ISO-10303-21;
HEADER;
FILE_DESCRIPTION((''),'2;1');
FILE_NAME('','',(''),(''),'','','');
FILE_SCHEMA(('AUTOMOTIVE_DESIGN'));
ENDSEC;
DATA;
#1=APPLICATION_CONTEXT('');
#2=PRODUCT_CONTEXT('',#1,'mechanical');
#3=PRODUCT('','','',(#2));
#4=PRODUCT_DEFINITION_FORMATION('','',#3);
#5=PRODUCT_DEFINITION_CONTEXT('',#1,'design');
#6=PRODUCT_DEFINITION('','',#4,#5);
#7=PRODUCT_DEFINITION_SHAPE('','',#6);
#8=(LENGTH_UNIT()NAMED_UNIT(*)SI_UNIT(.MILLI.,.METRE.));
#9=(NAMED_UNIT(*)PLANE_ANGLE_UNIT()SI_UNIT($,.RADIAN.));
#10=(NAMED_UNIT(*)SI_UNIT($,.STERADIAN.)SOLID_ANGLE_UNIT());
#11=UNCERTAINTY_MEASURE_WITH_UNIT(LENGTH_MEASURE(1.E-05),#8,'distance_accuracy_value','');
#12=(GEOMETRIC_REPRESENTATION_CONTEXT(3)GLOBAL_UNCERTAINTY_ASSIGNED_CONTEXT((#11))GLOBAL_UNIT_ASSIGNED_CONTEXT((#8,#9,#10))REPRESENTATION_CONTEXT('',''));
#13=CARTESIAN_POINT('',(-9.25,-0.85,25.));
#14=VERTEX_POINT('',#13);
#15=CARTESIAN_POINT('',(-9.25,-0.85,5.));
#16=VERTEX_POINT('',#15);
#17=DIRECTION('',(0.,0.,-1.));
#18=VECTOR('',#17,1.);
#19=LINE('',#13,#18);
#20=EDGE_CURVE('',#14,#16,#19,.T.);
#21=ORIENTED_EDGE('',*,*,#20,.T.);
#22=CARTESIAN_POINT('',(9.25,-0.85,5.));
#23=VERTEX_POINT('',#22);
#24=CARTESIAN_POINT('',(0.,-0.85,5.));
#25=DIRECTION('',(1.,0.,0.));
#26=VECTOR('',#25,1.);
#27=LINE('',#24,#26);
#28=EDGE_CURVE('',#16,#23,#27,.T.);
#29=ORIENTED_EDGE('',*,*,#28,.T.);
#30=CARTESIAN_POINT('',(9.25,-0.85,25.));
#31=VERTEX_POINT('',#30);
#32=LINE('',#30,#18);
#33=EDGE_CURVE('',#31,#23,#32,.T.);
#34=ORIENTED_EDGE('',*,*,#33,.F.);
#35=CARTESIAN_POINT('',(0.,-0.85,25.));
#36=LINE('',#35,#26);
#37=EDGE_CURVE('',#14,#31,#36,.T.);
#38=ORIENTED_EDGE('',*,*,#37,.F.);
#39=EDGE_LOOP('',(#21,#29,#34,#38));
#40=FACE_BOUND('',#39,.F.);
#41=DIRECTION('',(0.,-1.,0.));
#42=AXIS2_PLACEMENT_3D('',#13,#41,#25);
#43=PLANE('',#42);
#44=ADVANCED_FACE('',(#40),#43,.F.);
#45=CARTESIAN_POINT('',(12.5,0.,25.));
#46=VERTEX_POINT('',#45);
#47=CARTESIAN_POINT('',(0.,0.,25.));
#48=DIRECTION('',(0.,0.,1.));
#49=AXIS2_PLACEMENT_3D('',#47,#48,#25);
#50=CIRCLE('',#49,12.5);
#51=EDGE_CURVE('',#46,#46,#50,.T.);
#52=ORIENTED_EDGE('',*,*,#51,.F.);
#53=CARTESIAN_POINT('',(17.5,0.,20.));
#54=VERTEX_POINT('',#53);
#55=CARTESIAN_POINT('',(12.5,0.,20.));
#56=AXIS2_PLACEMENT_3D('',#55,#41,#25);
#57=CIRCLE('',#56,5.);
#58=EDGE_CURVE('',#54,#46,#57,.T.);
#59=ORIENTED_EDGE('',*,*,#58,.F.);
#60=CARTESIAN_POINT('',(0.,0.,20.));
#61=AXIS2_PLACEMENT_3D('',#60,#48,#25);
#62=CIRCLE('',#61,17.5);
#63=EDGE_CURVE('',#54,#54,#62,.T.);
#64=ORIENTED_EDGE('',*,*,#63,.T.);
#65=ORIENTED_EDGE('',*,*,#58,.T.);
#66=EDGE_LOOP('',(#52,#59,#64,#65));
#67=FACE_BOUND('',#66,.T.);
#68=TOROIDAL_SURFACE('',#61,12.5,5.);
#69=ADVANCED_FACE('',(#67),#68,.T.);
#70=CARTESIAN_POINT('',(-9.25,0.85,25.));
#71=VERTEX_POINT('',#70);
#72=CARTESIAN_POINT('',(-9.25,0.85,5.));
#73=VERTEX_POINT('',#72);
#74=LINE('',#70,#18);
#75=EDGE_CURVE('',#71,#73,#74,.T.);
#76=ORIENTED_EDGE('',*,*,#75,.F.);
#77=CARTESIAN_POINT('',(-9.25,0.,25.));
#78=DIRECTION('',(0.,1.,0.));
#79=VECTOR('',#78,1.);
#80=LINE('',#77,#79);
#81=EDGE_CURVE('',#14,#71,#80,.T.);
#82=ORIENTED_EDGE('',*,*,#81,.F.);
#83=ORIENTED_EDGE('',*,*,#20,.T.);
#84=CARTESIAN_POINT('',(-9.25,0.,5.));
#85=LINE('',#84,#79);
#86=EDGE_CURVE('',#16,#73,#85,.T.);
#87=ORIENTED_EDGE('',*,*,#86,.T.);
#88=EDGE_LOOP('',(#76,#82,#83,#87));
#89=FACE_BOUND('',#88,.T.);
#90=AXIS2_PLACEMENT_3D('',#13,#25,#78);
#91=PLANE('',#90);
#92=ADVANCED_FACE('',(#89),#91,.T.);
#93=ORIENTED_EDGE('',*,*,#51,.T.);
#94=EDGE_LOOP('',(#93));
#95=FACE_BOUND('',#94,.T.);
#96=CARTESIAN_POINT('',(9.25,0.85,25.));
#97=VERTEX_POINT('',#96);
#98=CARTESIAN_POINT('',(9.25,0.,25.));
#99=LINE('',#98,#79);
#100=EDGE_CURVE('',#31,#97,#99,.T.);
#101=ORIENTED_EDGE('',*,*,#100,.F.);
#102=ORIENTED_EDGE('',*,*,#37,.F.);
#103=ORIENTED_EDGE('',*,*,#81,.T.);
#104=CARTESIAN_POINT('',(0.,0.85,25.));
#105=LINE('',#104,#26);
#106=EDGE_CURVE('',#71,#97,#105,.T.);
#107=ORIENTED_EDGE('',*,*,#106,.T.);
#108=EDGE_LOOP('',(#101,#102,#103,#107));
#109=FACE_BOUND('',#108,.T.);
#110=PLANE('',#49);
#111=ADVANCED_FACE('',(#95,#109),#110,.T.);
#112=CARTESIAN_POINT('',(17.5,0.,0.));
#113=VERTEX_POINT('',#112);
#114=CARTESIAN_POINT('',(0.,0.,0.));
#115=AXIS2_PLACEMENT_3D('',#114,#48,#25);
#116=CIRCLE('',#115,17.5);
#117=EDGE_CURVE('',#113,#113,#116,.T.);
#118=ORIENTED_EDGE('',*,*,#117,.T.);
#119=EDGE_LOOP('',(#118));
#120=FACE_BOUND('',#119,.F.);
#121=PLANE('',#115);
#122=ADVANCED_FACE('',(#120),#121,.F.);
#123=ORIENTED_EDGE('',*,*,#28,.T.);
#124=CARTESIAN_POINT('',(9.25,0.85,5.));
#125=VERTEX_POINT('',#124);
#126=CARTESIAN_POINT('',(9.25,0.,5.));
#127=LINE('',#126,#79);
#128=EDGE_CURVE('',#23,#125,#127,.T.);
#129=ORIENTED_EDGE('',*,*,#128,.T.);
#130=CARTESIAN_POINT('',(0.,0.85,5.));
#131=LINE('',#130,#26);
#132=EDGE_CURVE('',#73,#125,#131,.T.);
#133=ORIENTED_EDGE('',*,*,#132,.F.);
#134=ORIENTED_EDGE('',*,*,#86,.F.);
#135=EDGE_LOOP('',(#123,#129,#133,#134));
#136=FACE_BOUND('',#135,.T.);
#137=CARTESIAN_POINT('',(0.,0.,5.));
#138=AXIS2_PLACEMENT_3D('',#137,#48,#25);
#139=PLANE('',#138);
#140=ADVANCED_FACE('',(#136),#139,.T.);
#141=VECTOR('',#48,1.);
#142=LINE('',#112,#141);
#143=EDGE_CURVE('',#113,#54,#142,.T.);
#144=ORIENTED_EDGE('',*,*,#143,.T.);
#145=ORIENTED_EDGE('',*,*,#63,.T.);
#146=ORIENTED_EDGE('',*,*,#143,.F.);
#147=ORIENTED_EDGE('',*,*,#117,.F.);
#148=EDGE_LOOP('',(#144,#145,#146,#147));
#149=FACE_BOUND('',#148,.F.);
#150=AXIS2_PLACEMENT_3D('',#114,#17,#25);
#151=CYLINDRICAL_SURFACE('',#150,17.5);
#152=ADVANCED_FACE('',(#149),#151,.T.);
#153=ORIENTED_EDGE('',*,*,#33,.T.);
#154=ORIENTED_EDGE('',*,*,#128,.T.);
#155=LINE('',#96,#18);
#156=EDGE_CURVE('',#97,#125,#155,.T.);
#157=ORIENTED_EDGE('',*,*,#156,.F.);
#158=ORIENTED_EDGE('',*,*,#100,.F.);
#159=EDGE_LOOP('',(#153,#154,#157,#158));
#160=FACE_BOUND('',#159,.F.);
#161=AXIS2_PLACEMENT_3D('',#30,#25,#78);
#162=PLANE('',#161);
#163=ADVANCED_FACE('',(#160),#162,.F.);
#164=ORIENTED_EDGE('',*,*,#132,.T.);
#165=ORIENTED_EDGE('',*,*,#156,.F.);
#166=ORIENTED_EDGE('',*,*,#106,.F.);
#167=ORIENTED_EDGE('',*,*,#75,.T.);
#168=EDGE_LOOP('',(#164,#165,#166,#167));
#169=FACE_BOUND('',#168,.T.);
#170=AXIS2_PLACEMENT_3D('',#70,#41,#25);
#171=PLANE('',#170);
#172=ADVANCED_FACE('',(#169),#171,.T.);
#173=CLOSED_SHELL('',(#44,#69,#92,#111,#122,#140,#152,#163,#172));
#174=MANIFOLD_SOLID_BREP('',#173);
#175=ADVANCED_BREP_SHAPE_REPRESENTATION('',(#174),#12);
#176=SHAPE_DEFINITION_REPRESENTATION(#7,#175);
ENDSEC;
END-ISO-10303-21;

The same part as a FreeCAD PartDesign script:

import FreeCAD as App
import Part
import Sketcher


def edges_at(feature, points):
    """Names of the edges that pass closest to the given points."""
    edges = feature.Shape.Edges
    near = lambda p: min(range(len(edges)), key=lambda i: edges[i].distToShape(Part.Vertex(*p))[0])
    return sorted({f"Edge{near(p) + 1}" for p in points})

doc = App.newDocument("Part")
body = doc.addObject("PartDesign::Body", "Body")

# Sketch on XY plane
sketch1 = body.newObject("Sketcher::SketchObject", "Sketch")
sketch1.AttachmentSupport = (doc.getObject("XY_Plane"), [""])
sketch1.MapMode = "FlatFace"
sketch1.addGeometry(Part.Circle(App.Vector(0, 0, 0), App.Vector(0, 0, 1), 18), False)
sketch1.addConstraint([
    Sketcher.Constraint("Coincident", 0, 3, -1, 1),
    Sketcher.Constraint("Diameter", 0, 35.0),
])
pad1 = body.newObject("PartDesign::Pad", "Pad")
pad1.Profile = sketch1
pad1.Length = 25
doc.recompute()

fillet = body.newObject("PartDesign::Fillet", "Fillet")
fillet.Base = (pad1, edges_at(pad1, [(-17.5, 0, 25)]))
fillet.Radius = 5

# Sketch on XY plane
sketch2 = body.newObject("Sketcher::SketchObject", "Sketch001")
sketch2.AttachmentSupport = (doc.getObject("XY_Plane"), [""])
sketch2.MapMode = "FlatFace"
sketch2.AttachmentOffset = App.Placement(App.Vector(0, 0, 25), App.Rotation())
sketch2.addGeometry([
    Part.LineSegment(App.Vector(-9.2, 0.8, 0), App.Vector(-9.2, -0.8, 0)),
    Part.LineSegment(App.Vector(-9.2, -0.8, 0), App.Vector(9.2, -0.8, 0)),
    Part.LineSegment(App.Vector(9.2, -0.8, 0), App.Vector(9.2, 0.8, 0)),
    Part.LineSegment(App.Vector(9.2, 0.8, 0), App.Vector(-9.2, 0.8, 0)),
], False)
sketch2.addConstraint([
    Sketcher.Constraint("Coincident", 0, 2, 1, 1),
    Sketcher.Constraint("Coincident", 1, 2, 2, 1),
    Sketcher.Constraint("Coincident", 2, 2, 3, 1),
    Sketcher.Constraint("Coincident", 3, 2, 0, 1),
    Sketcher.Constraint("Vertical", 0),
    Sketcher.Constraint("Horizontal", 1),
    Sketcher.Constraint("Vertical", 2),
    Sketcher.Constraint("Horizontal", 3),
    Sketcher.Constraint("Symmetric", 0, 2, 2, 2, -1, 1),
    Sketcher.Constraint("DistanceX", 1, 1, 1, 2, 18.5),
    Sketcher.Constraint("DistanceY", 0, 2, 0, 1, 1.7),
])
pocket1 = body.newObject("PartDesign::Pocket", "Pocket")
pocket1.Profile = sketch2
pocket1.Length = 20

doc.recompute()
